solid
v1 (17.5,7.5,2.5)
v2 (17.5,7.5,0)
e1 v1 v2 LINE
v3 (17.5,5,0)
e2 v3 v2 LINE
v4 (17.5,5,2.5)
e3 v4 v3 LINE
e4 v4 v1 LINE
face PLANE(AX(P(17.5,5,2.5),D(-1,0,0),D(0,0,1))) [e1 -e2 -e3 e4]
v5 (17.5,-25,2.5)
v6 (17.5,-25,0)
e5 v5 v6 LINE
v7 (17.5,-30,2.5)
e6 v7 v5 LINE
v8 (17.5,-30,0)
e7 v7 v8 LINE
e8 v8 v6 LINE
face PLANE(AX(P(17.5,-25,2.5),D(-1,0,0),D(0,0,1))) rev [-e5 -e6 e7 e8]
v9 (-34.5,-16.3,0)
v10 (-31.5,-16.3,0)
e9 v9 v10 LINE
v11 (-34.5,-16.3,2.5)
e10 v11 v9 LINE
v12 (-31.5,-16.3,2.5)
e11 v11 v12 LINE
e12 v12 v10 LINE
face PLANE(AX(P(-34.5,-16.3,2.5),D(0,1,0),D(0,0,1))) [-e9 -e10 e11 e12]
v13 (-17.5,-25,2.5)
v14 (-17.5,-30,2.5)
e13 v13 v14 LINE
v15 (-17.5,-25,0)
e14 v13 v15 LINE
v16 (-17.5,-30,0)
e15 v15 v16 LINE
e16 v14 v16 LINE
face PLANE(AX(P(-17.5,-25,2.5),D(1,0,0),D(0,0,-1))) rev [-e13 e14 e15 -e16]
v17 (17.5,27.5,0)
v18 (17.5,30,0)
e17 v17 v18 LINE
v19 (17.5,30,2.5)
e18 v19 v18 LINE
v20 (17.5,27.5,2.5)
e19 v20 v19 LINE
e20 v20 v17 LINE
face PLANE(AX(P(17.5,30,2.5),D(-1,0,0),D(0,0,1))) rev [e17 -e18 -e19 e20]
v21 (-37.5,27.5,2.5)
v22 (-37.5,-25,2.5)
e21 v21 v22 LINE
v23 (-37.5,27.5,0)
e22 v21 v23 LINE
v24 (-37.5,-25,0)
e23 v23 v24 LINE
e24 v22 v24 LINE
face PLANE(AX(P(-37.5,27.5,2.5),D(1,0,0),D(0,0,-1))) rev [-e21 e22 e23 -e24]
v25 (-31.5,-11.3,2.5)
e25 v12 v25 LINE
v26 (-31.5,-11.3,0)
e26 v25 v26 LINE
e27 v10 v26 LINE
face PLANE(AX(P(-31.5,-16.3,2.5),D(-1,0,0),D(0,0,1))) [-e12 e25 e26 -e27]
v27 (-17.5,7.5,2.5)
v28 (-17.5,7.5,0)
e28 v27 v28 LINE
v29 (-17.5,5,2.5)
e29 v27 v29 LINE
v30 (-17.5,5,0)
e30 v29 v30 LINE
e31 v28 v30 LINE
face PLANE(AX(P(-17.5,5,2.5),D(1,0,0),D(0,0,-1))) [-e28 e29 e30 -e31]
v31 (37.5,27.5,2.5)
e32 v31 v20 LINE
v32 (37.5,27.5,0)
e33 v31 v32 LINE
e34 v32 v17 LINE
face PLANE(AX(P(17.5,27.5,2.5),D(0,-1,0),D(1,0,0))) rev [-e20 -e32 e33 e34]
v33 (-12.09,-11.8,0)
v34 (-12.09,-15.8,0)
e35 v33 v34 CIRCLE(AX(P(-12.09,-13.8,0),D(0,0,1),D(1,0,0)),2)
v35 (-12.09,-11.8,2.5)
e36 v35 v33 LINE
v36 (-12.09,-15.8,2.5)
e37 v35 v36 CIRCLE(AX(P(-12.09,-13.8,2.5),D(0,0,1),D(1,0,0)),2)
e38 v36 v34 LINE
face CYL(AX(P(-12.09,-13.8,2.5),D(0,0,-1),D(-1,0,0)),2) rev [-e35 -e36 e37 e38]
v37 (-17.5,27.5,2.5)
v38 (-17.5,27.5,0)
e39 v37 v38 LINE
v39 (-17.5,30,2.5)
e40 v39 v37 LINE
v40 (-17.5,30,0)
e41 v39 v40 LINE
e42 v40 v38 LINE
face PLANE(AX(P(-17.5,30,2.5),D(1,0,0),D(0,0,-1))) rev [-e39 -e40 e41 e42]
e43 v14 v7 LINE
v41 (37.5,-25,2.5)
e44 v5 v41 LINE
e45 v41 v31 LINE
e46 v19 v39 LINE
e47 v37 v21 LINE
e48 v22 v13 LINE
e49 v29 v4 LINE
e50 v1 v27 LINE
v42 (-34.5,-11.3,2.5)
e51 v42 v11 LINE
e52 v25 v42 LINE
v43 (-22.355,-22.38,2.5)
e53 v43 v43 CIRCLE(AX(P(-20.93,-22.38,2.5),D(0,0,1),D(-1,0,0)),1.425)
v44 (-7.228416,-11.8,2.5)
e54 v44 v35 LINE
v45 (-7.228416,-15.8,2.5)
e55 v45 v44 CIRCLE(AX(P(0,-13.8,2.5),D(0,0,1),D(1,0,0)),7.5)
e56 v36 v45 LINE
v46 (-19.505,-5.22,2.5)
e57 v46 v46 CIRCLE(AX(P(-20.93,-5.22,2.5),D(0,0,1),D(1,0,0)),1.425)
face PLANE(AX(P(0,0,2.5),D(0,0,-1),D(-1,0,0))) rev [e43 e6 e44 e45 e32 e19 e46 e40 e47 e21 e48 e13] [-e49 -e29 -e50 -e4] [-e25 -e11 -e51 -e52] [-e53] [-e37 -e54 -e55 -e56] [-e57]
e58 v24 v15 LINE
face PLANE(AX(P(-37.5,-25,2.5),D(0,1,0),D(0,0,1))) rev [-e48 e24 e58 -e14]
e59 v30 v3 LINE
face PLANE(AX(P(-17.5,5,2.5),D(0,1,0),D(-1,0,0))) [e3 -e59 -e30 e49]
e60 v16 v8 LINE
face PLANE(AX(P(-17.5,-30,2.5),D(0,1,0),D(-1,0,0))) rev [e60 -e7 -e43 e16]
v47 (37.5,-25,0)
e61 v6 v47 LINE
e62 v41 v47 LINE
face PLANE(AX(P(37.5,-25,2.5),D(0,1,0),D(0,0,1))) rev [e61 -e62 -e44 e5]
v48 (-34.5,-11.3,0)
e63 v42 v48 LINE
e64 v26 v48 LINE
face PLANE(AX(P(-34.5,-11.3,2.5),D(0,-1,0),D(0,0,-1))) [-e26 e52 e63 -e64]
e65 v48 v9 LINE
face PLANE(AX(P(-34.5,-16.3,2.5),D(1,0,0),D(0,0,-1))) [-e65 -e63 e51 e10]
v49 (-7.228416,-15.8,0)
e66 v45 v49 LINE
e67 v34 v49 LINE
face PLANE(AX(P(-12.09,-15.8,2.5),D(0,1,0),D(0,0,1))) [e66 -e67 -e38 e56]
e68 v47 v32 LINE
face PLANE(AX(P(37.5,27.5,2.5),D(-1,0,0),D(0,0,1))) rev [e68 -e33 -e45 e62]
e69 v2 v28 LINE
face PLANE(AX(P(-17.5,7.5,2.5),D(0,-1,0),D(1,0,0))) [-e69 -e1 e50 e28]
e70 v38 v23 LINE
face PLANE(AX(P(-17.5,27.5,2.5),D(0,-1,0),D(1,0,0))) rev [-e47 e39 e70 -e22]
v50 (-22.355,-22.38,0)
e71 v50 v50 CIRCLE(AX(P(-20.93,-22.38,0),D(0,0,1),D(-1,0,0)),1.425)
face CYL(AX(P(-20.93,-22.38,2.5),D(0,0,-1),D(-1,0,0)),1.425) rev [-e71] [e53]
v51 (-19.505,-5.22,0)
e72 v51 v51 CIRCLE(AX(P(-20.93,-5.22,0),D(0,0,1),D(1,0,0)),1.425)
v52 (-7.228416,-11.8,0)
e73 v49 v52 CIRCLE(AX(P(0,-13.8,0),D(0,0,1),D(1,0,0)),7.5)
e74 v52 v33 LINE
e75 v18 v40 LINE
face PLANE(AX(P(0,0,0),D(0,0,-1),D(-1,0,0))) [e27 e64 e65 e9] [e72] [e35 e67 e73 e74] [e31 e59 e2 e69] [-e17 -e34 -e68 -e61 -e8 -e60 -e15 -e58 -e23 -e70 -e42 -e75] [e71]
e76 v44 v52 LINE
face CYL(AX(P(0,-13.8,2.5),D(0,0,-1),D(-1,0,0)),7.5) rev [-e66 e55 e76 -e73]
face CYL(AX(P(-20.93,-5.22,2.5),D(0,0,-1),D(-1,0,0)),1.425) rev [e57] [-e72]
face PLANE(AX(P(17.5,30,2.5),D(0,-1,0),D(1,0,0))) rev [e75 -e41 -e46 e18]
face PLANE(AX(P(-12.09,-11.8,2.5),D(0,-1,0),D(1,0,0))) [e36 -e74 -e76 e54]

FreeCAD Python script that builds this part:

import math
import FreeCAD as App
import Part
import Sketcher

V = App.Vector


def add_polygon(sketch, points):
    """Adds a closed chain of lines whose ends are joined by coincident constraints."""
    first, n = sketch.GeometryCount, len(points)
    for a, b in zip(points, points[1:] + points[:1]):
        sketch.addGeometry(Part.LineSegment(App.Vector(*a, 0), App.Vector(*b, 0)), False)
    for i in range(n):
        sketch.addConstraint(Sketcher.Constraint("Coincident", first + i, 2, first + (i + 1) % n, 1))

doc = App.newDocument("Part")
params = doc.addObject("Spreadsheet::Sheet", "Params")
for row, (alias, value) in enumerate([
    ("sketch1_radius", "2 mm"),
    ("sketch1_radius2", "7.5 mm"),
    ("sketch1_diameter", "2.85 mm"),
    ("sketch1_width", "35 mm"),
    ("sketch1_width2", "20 mm"),
    ("pad1_length", "2.5 mm"),
], start=1):
    params.set(f"A{row}", alias)
    params.set(f"B{row}", "=" + value)
    params.setAlias(f"B{row}", alias)

body = doc.addObject("PartDesign::Body", "Body")

sketch1 = body.newObject("Sketcher::SketchObject", "Sketch")
sketch1.AttachmentSupport = (doc.getObject("XY_Plane"), [""])
sketch1.MapMode = "FlatFace"
add_polygon(sketch1, [(17.5, 30), (-17.5, 30), (-17.5, 27.5), (-37.5, 27.5), (-37.5, -25), (-17.5, -25), (-17.5, -30), (17.5, -30), (17.5, -25), (37.5, -25), (37.5, 27.5), (17.5, 27.5)])
sketch1.addGeometry(Part.Circle(V(-20.9, -22.4, 0), V(0, 0, 1), 1.4), False)
add_polygon(sketch1, [(-31.5, -16.3), (-34.5, -16.3), (-34.5, -11.3), (-31.5, -11.3)])
sketch1.addGeometry(Part.ArcOfCircle(Part.Circle(V(-12.1, -13.8, 0), V(0, 0, 1), 2), math.radians(90), math.radians(270)), False)
sketch1.addGeometry(Part.LineSegment(V(-12.1, -11.8, 0), V(-7.2, -11.8, 0)), False)
sketch1.addGeometry(Part.ArcOfCircle(Part.Circle(V(0, -13.8, 0), V(0, 0, 1), 7.5), math.radians(-165), math.radians(165)), False)
sketch1.addGeometry(Part.LineSegment(V(-7.2, -15.8, 0), V(-12.1, -15.8, 0)), False)
sketch1.addGeometry(Part.Circle(V(-20.9, -5.2, 0), V(0, 0, 1), 1.4), False)
add_polygon(sketch1, [(17.5, 5), (-17.5, 5), (-17.5, 7.5), (17.5, 7.5)])
sketch1.addConstraint([
    Sketcher.Constraint("Tangent", 17, 1, 18, 1),
    Sketcher.Constraint("Coincident", 18, 2, 19, 2),
    Sketcher.Constraint("Coincident", 19, 1, 20, 1),
    Sketcher.Constraint("Tangent", 20, 2, 17, 2),
    Sketcher.Constraint("Horizontal", 0),
    Sketcher.Constraint("Vertical", 1),
    Sketcher.Constraint("Horizontal", 2),
    Sketcher.Constraint("Vertical", 3),
    Sketcher.Constraint("Horizontal", 4),
    Sketcher.Constraint("Vertical", 5),
    Sketcher.Constraint("Horizontal", 6),
    Sketcher.Constraint("Vertical", 7),
    Sketcher.Constraint("Horizontal", 8),
    Sketcher.Constraint("Vertical", 9),
    Sketcher.Constraint("Horizontal", 10),
    Sketcher.Constraint("Vertical", 11),
    Sketcher.Constraint("Horizontal", 13),
    Sketcher.Constraint("Vertical", 14),
    Sketcher.Constraint("Horizontal", 15),
    Sketcher.Constraint("Vertical", 16),
    Sketcher.Constraint("Horizontal", 18),
    Sketcher.Constraint("Horizontal", 20),
    Sketcher.Constraint("Horizontal", 22),
    Sketcher.Constraint("Vertical", 23),
    Sketcher.Constraint("Horizontal", 24),
    Sketcher.Constraint("Vertical", 25),
    Sketcher.Constraint("Equal", 12, 21),
    Sketcher.Constraint("Symmetric", 0, 2, 6, 2, -1, 1),
    Sketcher.Constraint("Symmetric", 4, 2, 7, 2, -2),
    Sketcher.Constraint("Symmetric", 2, 2, 9, 2, -2),
    Sketcher.Constraint("PointOnObject", 19, 3, -2),
    Sketcher.Constraint("Horizontal", 17, 3, 19, 3),
    Sketcher.Constraint("Vertical", 12, 3, 21, 3),
    Sketcher.Constraint("Vertical", 7, 2, 10, 2),
    Sketcher.Constraint("Vertical", 5, 2, 22, 2),
    Sketcher.Constraint("Vertical", 11, 2, 24, 2),
    Sketcher.Constraint("Equal", 7, 14),
    Sketcher.Constraint("Equal", 11, 23),
    Sketcher.Constraint("Radius", 17, 2.0),
    Sketcher.Constraint("Radius", 19, 7.5),
    Sketcher.Constraint("Diameter", 12, 2.85),
    Sketcher.Constraint("DistanceX", 0, 2, 0, 1, 35.0),
    Sketcher.Constraint("DistanceX", 2, 2, 2, 1, 20.0),
    Sketcher.Constraint("DistanceX", 13, 2, 13, 1, 3.0),
    Sketcher.Constraint("DistanceY", 5, 2, 5, 1, 5.0),
    Sketcher.Constraint("DistanceY", 1, 2, 1, 1, 2.5),
    Sketcher.Constraint("DistanceY", 3, 2, 3, 1, 52.5),
    Sketcher.Constraint("DistanceY", -1, 1, 22, 2, 5.0),
    Sketcher.Constraint("DistanceX", 3, 2, 13, 2, 3.0),
    Sketcher.Constraint("DistanceY", 17, 3, -1, 1, 13.8),
    Sketcher.Constraint("DistanceY", 13, 2, -1, 1, 16.3),
    Sketcher.Constraint("DistanceX", 12, 3, -1, 1, 20.93),
    Sketcher.Constraint("DistanceY", 12, 3, -1, 1, 22.38),
    Sketcher.Constraint("DistanceX", 17, 3, -1, 1, 12.09),
    Sketcher.Constraint("DistanceY", 21, 3, -1, 1, 5.22),
])
sketch1.setExpression("Constraints[58]", "Params.sketch1_radius")
sketch1.setExpression("Constraints[59]", "Params.sketch1_radius2")
sketch1.setExpression("Constraints[60]", "Params.sketch1_diameter")
sketch1.setExpression("Constraints[61]", "Params.sketch1_width")
sketch1.setExpression("Constraints[62]", "Params.sketch1_width2")
pad1 = body.newObject("PartDesign::Pad", "Pad")
pad1.Profile = sketch1
pad1.setExpression("Length", "Params.pad1_length")

doc.recompute()
